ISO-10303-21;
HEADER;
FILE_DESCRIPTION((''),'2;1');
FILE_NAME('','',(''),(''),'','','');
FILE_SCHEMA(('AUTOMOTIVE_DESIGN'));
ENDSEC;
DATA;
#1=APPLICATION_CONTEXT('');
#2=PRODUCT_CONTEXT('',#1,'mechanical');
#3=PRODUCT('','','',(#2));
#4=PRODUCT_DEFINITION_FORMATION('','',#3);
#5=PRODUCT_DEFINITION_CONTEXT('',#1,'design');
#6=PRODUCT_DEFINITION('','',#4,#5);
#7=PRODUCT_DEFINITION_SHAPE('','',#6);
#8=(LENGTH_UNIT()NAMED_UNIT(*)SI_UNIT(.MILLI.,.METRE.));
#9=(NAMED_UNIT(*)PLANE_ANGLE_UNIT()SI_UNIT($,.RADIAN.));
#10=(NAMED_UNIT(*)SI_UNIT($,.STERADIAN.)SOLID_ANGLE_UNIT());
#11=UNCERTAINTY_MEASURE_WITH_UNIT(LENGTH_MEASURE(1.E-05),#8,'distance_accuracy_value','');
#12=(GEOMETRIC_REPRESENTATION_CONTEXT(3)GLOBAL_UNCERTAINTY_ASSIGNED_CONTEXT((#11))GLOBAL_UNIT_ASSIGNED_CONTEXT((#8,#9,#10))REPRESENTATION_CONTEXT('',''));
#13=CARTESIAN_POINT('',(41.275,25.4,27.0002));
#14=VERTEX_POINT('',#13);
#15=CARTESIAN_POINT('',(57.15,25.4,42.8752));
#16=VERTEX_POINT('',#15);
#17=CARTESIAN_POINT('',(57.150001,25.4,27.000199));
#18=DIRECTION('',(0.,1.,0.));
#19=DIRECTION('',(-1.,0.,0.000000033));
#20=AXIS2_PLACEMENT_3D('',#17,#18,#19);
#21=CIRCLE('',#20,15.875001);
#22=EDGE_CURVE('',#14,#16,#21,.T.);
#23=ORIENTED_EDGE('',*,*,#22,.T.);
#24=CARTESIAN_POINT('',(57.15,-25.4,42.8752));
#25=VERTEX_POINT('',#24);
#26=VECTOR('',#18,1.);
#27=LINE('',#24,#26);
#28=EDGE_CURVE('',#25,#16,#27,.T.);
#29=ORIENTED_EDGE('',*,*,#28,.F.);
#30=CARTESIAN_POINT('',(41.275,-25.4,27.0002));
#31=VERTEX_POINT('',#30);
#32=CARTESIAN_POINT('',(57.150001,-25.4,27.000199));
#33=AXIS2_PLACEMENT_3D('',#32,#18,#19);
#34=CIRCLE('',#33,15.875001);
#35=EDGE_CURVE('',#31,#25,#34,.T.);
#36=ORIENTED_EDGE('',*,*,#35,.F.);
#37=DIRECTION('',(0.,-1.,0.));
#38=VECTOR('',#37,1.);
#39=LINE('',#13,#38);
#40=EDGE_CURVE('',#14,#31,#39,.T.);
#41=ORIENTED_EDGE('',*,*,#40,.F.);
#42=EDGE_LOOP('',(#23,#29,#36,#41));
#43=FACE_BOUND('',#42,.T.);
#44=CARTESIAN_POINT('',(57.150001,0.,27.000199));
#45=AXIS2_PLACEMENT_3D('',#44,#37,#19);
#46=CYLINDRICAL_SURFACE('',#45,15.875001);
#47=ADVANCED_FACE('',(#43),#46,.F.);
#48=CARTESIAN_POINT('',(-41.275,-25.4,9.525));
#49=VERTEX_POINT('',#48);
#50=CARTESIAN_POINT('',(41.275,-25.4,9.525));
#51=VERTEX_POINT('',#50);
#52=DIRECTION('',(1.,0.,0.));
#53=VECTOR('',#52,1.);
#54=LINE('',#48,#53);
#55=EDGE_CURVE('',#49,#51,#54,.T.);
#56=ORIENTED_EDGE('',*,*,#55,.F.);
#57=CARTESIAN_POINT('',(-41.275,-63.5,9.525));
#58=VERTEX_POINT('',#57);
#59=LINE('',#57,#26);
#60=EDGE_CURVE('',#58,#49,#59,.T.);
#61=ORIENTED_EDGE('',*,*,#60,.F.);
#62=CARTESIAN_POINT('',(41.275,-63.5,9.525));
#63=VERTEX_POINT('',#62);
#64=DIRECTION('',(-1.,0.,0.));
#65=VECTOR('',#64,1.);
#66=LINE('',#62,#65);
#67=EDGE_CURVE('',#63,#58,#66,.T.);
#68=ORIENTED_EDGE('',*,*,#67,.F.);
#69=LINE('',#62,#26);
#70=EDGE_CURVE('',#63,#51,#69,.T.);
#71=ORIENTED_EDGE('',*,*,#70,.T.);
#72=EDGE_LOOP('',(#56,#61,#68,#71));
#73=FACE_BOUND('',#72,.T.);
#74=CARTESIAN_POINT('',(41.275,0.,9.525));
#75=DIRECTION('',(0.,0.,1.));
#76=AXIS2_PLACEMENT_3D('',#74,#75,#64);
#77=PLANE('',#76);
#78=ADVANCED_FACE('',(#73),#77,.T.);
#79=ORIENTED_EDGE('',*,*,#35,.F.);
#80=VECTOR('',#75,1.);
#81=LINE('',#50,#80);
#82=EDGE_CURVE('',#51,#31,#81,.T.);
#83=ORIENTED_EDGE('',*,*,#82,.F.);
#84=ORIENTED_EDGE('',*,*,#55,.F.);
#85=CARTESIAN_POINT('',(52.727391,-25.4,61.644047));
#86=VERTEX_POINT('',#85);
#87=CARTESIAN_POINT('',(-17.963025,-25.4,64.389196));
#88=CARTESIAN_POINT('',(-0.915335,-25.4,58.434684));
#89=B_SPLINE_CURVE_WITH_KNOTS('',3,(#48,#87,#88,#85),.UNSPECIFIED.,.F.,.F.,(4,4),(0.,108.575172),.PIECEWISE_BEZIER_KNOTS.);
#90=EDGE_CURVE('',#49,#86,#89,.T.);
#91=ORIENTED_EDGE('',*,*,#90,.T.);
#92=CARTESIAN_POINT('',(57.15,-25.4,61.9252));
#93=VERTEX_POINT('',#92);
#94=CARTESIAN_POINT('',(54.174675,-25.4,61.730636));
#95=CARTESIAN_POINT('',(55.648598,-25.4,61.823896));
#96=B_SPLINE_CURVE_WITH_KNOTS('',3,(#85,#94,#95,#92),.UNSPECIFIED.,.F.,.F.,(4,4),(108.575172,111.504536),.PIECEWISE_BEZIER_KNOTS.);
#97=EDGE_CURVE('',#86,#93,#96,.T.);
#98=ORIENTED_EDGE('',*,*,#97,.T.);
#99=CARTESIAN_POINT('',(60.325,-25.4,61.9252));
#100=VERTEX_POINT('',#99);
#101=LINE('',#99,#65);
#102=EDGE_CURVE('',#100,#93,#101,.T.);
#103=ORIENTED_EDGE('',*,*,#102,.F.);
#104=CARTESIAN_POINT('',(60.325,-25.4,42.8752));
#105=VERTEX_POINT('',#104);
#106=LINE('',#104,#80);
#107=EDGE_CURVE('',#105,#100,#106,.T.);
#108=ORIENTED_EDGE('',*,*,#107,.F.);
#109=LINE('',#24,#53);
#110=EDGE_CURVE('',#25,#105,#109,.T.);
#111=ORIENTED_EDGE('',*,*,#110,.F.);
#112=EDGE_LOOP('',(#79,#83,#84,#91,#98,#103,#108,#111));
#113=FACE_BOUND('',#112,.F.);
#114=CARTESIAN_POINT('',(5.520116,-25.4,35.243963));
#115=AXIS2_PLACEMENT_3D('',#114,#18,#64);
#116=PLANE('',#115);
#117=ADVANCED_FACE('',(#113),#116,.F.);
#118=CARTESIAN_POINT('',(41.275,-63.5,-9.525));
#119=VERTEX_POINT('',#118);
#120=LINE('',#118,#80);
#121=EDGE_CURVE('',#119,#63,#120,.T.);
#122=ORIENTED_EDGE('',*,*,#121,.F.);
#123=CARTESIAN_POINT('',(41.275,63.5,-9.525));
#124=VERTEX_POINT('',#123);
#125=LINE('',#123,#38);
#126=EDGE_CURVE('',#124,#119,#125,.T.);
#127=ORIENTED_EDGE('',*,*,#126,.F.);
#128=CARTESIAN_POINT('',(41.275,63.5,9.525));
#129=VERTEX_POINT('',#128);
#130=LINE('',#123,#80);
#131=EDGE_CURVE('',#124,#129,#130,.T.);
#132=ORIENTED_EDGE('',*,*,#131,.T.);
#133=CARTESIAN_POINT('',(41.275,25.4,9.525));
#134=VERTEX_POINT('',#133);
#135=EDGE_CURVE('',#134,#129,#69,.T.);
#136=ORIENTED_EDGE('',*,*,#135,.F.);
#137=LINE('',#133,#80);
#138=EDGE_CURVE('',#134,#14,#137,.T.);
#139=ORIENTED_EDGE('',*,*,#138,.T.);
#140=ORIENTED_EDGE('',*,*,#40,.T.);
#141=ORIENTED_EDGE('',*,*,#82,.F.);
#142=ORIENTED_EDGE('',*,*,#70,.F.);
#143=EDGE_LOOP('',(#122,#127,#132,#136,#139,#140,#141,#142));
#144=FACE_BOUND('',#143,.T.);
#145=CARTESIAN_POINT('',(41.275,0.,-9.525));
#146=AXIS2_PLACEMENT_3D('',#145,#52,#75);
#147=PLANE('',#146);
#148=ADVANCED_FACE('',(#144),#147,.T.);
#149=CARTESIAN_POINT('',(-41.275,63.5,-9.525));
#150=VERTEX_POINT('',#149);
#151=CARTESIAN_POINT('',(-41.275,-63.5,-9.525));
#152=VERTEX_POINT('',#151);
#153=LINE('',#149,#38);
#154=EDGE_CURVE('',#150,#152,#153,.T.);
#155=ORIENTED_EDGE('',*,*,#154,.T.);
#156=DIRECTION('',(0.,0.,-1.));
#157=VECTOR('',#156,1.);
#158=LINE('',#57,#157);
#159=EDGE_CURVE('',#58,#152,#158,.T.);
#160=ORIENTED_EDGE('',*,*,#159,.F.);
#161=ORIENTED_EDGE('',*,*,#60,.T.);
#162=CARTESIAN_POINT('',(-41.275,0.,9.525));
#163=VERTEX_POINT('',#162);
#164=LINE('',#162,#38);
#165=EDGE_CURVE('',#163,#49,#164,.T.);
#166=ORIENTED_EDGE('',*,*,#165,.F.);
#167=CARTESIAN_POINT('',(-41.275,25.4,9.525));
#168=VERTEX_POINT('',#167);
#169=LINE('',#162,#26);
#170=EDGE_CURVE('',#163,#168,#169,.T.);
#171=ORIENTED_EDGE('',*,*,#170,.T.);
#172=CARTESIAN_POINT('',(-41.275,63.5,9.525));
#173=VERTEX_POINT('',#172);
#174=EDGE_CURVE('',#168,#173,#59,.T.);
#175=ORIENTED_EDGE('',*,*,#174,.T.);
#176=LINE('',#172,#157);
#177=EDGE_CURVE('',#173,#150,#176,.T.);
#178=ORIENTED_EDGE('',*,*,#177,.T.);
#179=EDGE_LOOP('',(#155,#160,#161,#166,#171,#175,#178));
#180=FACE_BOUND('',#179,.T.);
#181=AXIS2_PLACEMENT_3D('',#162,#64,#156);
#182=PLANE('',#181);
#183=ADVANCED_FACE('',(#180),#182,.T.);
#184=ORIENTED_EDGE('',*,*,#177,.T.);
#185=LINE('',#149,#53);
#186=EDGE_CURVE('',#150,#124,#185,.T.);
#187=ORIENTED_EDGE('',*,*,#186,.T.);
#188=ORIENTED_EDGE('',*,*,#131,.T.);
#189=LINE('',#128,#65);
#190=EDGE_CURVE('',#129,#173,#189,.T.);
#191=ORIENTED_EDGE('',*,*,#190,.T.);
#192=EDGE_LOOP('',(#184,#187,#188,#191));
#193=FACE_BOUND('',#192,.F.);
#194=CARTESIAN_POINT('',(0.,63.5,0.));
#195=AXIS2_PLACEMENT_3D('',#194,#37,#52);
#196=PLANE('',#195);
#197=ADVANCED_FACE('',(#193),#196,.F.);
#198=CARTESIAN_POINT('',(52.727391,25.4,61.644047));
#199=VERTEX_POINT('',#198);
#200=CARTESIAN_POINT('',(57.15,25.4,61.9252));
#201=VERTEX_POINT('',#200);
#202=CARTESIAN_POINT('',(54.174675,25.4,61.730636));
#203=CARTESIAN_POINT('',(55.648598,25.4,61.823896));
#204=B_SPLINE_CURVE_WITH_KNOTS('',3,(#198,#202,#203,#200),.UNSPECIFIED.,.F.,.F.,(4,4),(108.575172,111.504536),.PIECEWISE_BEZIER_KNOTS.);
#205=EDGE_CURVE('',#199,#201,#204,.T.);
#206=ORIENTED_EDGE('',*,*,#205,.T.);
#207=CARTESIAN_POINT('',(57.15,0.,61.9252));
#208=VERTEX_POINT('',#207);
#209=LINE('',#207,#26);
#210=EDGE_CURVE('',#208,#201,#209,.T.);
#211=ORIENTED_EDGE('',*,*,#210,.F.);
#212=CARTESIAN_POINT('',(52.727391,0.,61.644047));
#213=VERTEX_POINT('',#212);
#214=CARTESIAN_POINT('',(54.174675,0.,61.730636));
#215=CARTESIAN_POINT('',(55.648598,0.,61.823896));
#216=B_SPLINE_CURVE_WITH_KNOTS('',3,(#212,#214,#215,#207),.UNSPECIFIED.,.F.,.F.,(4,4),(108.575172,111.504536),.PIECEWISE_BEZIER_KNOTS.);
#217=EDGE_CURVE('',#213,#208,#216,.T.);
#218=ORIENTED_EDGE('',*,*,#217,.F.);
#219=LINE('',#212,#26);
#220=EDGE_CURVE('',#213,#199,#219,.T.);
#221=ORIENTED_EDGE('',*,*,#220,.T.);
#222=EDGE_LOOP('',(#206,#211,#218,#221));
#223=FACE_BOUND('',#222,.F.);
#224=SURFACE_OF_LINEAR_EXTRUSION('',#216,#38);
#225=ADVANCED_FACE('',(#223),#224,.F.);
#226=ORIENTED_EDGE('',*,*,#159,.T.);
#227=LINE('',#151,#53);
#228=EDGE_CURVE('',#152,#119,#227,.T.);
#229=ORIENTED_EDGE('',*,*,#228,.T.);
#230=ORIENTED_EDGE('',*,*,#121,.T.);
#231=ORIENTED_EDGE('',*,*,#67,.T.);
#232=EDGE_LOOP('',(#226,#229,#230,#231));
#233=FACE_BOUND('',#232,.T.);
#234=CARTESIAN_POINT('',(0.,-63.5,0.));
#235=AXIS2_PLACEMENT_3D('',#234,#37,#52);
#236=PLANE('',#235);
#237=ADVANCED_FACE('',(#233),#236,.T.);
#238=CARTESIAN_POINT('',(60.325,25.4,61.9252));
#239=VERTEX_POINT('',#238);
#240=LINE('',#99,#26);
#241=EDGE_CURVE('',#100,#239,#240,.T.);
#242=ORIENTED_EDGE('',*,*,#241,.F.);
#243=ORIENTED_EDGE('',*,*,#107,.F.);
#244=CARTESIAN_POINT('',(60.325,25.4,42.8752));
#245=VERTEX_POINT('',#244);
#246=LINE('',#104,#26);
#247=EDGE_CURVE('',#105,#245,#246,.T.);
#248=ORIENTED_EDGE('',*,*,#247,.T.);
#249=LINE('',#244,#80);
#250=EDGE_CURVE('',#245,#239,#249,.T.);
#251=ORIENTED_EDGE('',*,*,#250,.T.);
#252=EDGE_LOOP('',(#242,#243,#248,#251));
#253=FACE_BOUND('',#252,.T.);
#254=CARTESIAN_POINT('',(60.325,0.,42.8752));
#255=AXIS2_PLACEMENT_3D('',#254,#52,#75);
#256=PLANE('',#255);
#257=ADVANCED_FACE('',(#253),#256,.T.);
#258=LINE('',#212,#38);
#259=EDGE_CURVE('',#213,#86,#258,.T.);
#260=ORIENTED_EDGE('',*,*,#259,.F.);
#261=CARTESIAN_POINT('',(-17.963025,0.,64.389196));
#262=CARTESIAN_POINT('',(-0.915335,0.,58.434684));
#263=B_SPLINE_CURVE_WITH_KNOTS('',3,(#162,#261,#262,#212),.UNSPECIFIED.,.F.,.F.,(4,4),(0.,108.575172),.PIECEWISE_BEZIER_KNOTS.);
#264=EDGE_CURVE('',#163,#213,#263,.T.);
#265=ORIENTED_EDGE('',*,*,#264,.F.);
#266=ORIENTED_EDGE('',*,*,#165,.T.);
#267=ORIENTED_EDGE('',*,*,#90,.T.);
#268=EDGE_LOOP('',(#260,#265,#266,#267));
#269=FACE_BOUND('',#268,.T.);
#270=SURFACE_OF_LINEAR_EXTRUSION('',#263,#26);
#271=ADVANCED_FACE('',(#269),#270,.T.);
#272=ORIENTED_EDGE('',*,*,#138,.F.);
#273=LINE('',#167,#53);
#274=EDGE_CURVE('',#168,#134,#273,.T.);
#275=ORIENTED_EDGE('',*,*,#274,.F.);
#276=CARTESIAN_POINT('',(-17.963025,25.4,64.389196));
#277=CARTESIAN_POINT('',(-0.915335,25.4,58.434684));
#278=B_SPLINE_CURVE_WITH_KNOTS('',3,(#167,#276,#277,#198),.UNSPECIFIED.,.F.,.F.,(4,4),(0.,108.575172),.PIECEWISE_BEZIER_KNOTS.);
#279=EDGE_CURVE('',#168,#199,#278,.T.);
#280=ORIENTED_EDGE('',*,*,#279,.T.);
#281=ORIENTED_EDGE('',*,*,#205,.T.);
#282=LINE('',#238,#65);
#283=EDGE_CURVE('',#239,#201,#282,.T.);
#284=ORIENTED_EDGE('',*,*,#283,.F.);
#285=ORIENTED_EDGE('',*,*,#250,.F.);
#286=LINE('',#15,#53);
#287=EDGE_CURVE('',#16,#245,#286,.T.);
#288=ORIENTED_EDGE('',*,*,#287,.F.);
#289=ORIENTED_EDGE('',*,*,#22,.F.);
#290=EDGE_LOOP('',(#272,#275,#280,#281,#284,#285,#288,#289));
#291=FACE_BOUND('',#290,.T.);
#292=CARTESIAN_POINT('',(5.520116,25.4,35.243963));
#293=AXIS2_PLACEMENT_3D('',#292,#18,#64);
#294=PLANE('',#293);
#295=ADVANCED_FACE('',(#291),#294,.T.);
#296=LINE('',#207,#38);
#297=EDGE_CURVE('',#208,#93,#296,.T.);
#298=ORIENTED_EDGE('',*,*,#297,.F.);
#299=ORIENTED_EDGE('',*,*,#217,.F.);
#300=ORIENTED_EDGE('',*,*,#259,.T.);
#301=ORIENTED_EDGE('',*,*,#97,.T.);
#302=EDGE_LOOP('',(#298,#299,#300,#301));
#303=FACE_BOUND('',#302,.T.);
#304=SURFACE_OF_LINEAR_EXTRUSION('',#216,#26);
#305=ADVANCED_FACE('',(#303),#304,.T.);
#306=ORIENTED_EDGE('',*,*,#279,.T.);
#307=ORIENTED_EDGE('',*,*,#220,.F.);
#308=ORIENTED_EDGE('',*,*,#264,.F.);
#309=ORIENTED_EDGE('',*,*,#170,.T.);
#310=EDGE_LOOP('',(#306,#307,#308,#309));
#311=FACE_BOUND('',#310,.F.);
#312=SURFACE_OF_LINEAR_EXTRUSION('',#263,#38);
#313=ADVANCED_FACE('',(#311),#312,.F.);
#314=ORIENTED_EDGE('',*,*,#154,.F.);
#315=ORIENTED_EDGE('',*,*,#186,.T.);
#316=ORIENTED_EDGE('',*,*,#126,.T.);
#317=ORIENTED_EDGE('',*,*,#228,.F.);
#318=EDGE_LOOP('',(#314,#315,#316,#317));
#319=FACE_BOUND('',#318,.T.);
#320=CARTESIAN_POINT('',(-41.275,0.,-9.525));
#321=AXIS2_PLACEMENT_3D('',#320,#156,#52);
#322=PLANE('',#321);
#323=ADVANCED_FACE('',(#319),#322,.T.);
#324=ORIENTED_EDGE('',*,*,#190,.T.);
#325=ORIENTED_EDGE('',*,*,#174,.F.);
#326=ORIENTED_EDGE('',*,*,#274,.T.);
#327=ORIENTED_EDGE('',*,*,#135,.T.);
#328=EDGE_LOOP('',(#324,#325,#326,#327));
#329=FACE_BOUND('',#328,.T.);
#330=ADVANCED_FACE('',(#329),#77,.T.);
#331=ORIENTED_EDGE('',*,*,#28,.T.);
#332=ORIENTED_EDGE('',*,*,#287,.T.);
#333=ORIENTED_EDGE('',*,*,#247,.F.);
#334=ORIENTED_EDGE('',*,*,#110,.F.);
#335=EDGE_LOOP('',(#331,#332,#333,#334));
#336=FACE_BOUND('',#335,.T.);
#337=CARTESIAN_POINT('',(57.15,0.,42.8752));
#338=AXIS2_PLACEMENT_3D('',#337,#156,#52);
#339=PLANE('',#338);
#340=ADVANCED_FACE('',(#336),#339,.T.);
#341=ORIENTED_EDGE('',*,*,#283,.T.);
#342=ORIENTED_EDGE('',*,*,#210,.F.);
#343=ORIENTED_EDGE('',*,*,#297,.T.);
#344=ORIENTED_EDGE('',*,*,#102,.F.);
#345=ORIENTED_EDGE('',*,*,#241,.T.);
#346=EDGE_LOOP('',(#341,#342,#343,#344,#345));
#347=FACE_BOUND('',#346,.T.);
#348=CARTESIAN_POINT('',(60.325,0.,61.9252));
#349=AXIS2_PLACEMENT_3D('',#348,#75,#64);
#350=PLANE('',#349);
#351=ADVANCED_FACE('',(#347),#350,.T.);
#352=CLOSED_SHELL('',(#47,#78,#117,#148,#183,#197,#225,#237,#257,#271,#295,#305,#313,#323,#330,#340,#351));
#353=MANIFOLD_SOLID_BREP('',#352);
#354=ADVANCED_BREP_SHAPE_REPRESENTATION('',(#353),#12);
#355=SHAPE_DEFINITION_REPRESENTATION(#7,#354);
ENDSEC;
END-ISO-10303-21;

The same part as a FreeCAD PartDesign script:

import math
import FreeCAD as App
import Part
import Sketcher
from FreeCAD import Vector
Q = App.Units.Quantity

doc = App.newDocument("Part")
params = doc.addObject("Spreadsheet::Sheet", "Params")
for row, (alias, value) in enumerate([
    ("sketch1_width", "3.25 in"),
    ("sketch1_height", "0.75 in"),
    ("pad1_length", "5 in"),
    ("sketch2_radius", "0.625 in"),
    ("sketch2_height", "0.75 in"),
    ("sketch2_width", "0.125 in"),
    ("pad2_length", "2 in"),
], start=1):
    params.set(f"A{row}", alias)
    params.set(f"B{row}", "=" + value)
    params.setAlias(f"B{row}", alias)

body = doc.addObject("PartDesign::Body", "Body")

# Sketch on XZ plane
sketch1 = body.newObject("Sketcher::SketchObject", "Sketch")
sketch1.AttachmentSupport = (doc.getObject("XZ_Plane"), [""])
sketch1.MapMode = "FlatFace"
sketch1.addGeometry([
    Part.LineSegment(Vector(-41.275, 9.525, 0), Vector(-41.275, -9.525, 0)),
    Part.LineSegment(Vector(-41.275, -9.525, 0), Vector(41.275, -9.525, 0)),
    Part.LineSegment(Vector(41.275, -9.525, 0), Vector(41.275, 9.525, 0)),
    Part.LineSegment(Vector(41.275, 9.525, 0), Vector(-41.275, 9.525, 0)),
], False)
sketch1.addConstraint([
    Sketcher.Constraint("Coincident", 0, 2, 1, 1),
    Sketcher.Constraint("Coincident", 1, 2, 2, 1),
    Sketcher.Constraint("Coincident", 2, 2, 3, 1),
    Sketcher.Constraint("Coincident", 3, 2, 0, 1),
    Sketcher.Constraint("Vertical", 0),
    Sketcher.Constraint("Horizontal", 1),
    Sketcher.Constraint("Vertical", 2),
    Sketcher.Constraint("Horizontal", 3),
    Sketcher.Constraint("Symmetric", 0, 2, 2, 2, -1, 1),
    Sketcher.Constraint("DistanceX", 1, 1, 1, 2, Q("3.25 in")),
    Sketcher.Constraint("DistanceY", 0, 2, 0, 1, Q("0.75 in")),
])
sketch1.setExpression("Constraints[9]", "Params.sketch1_width")
sketch1.setExpression("Constraints[10]", "Params.sketch1_height")
pad1 = body.newObject("PartDesign::Pad", "Pad")
pad1.Profile = sketch1
pad1.setExpression("Length", "Params.pad1_length")
pad1.Midplane = True

# Sketch on XZ plane
sketch2 = body.newObject("Sketcher::SketchObject", "Sketch001")
sketch2.AttachmentSupport = (doc.getObject("XZ_Plane"), [""])
sketch2.MapMode = "FlatFace"
sketch2.addGeometry([
    Part.BSplineCurve([Vector(-41.275, 9.525, 0), Vector(-17.963025, 64.389196, 0), Vector(-0.915335, 58.434684, 0), Vector(52.727391, 61.644047, 0)], [4, 4], [0, 108.575172], False, 3, [1, 1, 1, 1], False),  # 0
    Part.LineSegment(Vector(-41.275, 9.525, 0), Vector(41.275, 9.525, 0)),  # 1
    Part.LineSegment(Vector(41.275, 9.525, 0), Vector(41.275, 27.0002, 0)),  # 2
    Part.ArcOfCircle(Part.Circle(Vector(57.150001, 27.000199, 0), Vector(0, 0, 1), 15.875001), math.radians(90.000002), math.radians(179.999998)),  # 3
    Part.LineSegment(Vector(57.15, 42.8752, 0), Vector(60.325, 42.8752, 0)),  # 4
    Part.LineSegment(Vector(60.325, 42.8752, 0), Vector(60.325, 61.9252, 0)),  # 5
    Part.LineSegment(Vector(60.325, 61.9252, 0), Vector(57.15, 61.9252, 0)),  # 6
    Part.BSplineCurve([Vector(52.727391, 61.644047, 0), Vector(54.174675, 61.730636, 0), Vector(55.648598, 61.823896, 0), Vector(57.15, 61.9252, 0)], [4, 4], [108.575172, 111.504536], False, 3, [1, 1, 1, 1], False),  # 7
], False)
sketch2.addConstraint([
    Sketcher.Constraint("Block", 0),
    Sketcher.Constraint("Block", 7),
    Sketcher.Constraint("Coincident", 0, 1, 1, 1),
    Sketcher.Constraint("Coincident", 1, 2, 2, 1),
    Sketcher.Constraint("Tangent", 2, 2, 3, 2),
    Sketcher.Constraint("Tangent", 3, 1, 4, 1),
    Sketcher.Constraint("Coincident", 4, 2, 5, 1),
    Sketcher.Constraint("Coincident", 5, 2, 6, 1),
    Sketcher.Constraint("Coincident", 6, 2, 7, 2),
    Sketcher.Constraint("Horizontal", 1),
    Sketcher.Constraint("Vertical", 2),
    Sketcher.Constraint("Horizontal", 4),
    Sketcher.Constraint("Vertical", 5),
    Sketcher.Constraint("Horizontal", 6),
    Sketcher.Constraint("Vertical", 3, 1, 6, 2),
    Sketcher.Constraint("Radius", 3, Q("0.625 in")),
    Sketcher.Constraint("DistanceY", 5, 1, 5, 2, Q("0.75 in")),
    Sketcher.Constraint("DistanceX", 4, 1, 4, 2, Q("0.125 in")),
])
sketch2.setExpression("Constraints[15]", "Params.sketch2_radius")
sketch2.setExpression("Constraints[16]", "Params.sketch2_height")
sketch2.setExpression("Constraints[17]", "Params.sketch2_width")
pad2 = body.newObject("PartDesign::Pad", "Pad001")
pad2.Profile = sketch2
pad2.setExpression("Length", "Params.pad2_length")
pad2.Midplane = True

doc.recompute()
